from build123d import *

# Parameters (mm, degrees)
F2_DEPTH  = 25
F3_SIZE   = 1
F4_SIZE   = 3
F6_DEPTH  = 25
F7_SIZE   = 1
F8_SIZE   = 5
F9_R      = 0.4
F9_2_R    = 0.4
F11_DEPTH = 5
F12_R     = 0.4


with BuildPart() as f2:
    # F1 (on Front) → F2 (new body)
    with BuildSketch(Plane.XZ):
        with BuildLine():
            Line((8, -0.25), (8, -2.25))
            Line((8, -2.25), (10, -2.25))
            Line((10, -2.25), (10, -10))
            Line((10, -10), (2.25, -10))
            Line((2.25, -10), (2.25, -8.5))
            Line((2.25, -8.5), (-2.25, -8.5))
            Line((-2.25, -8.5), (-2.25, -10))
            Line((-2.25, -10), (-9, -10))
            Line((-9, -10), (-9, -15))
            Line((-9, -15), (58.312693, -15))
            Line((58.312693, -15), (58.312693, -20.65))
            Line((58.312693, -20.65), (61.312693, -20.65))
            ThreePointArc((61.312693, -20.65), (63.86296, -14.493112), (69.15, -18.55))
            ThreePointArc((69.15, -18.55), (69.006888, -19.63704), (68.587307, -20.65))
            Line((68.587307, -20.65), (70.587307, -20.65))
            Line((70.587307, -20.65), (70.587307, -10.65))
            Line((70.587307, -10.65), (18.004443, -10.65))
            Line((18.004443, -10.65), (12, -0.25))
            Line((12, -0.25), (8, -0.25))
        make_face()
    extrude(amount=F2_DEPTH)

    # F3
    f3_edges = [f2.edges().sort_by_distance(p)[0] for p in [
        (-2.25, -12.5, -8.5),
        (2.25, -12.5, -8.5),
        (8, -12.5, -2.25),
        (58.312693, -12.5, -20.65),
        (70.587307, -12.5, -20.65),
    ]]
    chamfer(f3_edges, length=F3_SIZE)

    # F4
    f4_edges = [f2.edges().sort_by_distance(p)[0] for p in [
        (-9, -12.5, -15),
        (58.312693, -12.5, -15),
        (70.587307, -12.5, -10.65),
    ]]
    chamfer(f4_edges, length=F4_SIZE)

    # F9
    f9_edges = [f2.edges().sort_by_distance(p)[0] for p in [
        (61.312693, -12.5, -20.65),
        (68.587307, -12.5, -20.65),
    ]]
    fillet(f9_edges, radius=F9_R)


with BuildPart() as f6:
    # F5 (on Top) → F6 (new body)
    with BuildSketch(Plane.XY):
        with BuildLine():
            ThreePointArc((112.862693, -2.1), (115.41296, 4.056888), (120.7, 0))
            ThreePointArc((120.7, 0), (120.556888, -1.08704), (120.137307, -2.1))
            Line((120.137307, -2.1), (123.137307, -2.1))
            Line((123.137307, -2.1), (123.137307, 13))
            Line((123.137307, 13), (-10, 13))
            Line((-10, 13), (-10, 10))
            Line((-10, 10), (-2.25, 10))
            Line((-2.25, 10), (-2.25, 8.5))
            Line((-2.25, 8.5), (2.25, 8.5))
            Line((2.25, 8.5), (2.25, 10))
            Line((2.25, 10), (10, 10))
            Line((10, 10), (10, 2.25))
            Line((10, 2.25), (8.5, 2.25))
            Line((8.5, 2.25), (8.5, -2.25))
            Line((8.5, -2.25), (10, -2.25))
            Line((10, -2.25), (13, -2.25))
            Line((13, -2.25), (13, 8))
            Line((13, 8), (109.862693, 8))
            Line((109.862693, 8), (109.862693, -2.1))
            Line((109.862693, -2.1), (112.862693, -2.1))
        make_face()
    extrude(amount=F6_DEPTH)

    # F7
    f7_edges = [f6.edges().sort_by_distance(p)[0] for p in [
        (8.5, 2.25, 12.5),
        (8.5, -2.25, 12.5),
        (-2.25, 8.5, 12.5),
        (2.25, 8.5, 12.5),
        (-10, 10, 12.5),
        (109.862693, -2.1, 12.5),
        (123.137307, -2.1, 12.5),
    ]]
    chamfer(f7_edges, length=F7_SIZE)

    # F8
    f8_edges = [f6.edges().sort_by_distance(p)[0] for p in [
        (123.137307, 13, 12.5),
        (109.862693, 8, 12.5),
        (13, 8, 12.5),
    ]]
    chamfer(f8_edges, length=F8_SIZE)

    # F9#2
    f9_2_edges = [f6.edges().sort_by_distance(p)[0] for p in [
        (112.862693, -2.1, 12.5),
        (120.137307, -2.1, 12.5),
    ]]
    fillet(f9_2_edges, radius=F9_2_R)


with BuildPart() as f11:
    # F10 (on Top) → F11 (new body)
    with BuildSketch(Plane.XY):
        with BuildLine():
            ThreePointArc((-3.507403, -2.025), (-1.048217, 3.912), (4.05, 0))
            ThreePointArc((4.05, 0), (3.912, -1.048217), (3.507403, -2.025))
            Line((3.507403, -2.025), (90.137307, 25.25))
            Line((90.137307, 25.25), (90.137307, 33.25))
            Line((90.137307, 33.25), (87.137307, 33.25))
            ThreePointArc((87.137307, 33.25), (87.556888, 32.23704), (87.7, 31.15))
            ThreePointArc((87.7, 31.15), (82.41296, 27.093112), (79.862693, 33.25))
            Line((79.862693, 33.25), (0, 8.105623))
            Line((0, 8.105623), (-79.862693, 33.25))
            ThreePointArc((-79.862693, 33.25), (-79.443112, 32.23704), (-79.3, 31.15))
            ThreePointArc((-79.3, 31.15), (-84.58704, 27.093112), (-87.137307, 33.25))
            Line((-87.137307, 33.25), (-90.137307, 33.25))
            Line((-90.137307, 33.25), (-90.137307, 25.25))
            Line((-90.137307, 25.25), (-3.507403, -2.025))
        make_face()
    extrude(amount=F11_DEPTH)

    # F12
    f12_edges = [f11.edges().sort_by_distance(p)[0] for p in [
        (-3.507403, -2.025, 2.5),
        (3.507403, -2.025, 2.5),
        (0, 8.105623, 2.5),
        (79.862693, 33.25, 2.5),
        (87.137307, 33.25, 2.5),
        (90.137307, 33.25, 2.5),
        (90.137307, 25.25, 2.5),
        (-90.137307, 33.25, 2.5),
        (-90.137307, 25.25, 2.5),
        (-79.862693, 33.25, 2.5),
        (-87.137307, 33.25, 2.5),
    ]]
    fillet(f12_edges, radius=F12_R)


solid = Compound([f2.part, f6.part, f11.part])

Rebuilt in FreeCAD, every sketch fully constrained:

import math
import FreeCAD as App
import Part
import Sketcher
Q = App.Units.Quantity


def edges_at(feature, points):
    """Names of the edges that pass closest to the given points."""
    edges = feature.Shape.Edges
    near = lambda p: min(range(len(edges)), key=lambda i: edges[i].distToShape(Part.Vertex(*p))[0])
    return sorted({f"Edge{near(p) + 1}" for p in points})

doc = App.newDocument("Part")
body = doc.addObject("PartDesign::Body", "Body")

# Sketch on XZ plane
sketch1 = doc.addObject("Sketcher::SketchObject", "Sketch")
body.addObject(sketch1)
sketch1.AttachmentSupport = (doc.XZ_Plane, [""])
sketch1.MapMode = "FlatFace"
sketch1.addGeometry([
    Part.LineSegment(App.Vector(8, -0.2, 0), App.Vector(8, -2.2, 0)),  # 0
    Part.LineSegment(App.Vector(8, -2.2, 0), App.Vector(10, -2.2, 0)),  # 1
    Part.LineSegment(App.Vector(10, -2.2, 0), App.Vector(10, -10, 0)),  # 2
    Part.LineSegment(App.Vector(10, -10, 0), App.Vector(2.2, -10, 0)),  # 3
    Part.LineSegment(App.Vector(2.2, -10, 0), App.Vector(2.2, -8.5, 0)),  # 4
    Part.LineSegment(App.Vector(2.2, -8.5, 0), App.Vector(-2.2, -8.5, 0)),  # 5
    Part.LineSegment(App.Vector(-2.2, -8.5, 0), App.Vector(-2.2, -10, 0)),  # 6
    Part.LineSegment(App.Vector(-2.2, -10, 0), App.Vector(-9, -10, 0)),  # 7
    Part.LineSegment(App.Vector(-9, -10, 0), App.Vector(-9, -15, 0)),  # 8
    Part.LineSegment(App.Vector(-9, -15, 0), App.Vector(58.3, -15, 0)),  # 9
    Part.LineSegment(App.Vector(58.3, -15, 0), App.Vector(58.3, -20.6, 0)),  # 10
    Part.LineSegment(App.Vector(58.3, -20.6, 0), App.Vector(61.3, -20.6, 0)),  # 11
    Part.ArcOfCircle(Part.Circle(App.Vector(64.9, -18.6, 0), App.Vector(0, 0, 1), 4.2), math.radians(0), math.radians(210)),  # 12
    Part.ArcOfCircle(Part.Circle(App.Vector(64.9, -18.5, 0), App.Vector(0, 0, 1), 4.2), math.radians(-30), math.radians(0)),  # 13
    Part.LineSegment(App.Vector(68.6, -20.6, 0), App.Vector(70.6, -20.6, 0)),  # 14
    Part.LineSegment(App.Vector(70.6, -20.6, 0), App.Vector(70.6, -10.7, 0)),  # 15
    Part.LineSegment(App.Vector(70.6, -10.7, 0), App.Vector(18, -10.7, 0)),  # 16
    Part.LineSegment(App.Vector(18, -10.7, 0), App.Vector(12, -0.2, 0)),  # 17
    Part.LineSegment(App.Vector(12, -0.2, 0), App.Vector(8, -0.2, 0)),  # 18
], False)
sketch1.addConstraint([
    Sketcher.Constraint("Coincident", 0, 2, 1, 1),
    Sketcher.Constraint("Coincident", 1, 2, 2, 1),
    Sketcher.Constraint("Coincident", 2, 2, 3, 1),
    Sketcher.Constraint("Coincident", 3, 2, 4, 1),
    Sketcher.Constraint("Coincident", 4, 2, 5, 1),
    Sketcher.Constraint("Coincident", 5, 2, 6, 1),
    Sketcher.Constraint("Coincident", 6, 2, 7, 1),
    Sketcher.Constraint("Coincident", 7, 2, 8, 1),
    Sketcher.Constraint("Coincident", 8, 2, 9, 1),
    Sketcher.Constraint("Coincident", 9, 2, 10, 1),
    Sketcher.Constraint("Coincident", 10, 2, 11, 1),
    Sketcher.Constraint("Coincident", 11, 2, 12, 2),
    Sketcher.Constraint("Tangent", 12, 1, 13, 2),
    Sketcher.Constraint("Coincident", 13, 1, 14, 1),
    Sketcher.Constraint("Coincident", 14, 2, 15, 1),
    Sketcher.Constraint("Coincident", 15, 2, 16, 1),
    Sketcher.Constraint("Coincident", 16, 2, 17, 1),
    Sketcher.Constraint("Coincident", 17, 2, 18, 1),
    Sketcher.Constraint("Coincident", 18, 2, 0, 1),
    Sketcher.Constraint("Vertical", 0),
    Sketcher.Constraint("Horizontal", 1),
    Sketcher.Constraint("Vertical", 2),
    Sketcher.Constraint("Horizontal", 3),
    Sketcher.Constraint("Vertical", 4),
    Sketcher.Constraint("Horizontal", 5),
    Sketcher.Constraint("Vertical", 6),
    Sketcher.Constraint("Horizontal", 7),
    Sketcher.Constraint("Vertical", 8),
    Sketcher.Constraint("Horizontal", 9),
    Sketcher.Constraint("Vertical", 10),
    Sketcher.Constraint("Horizontal", 11),
    Sketcher.Constraint("Horizontal", 14),
    Sketcher.Constraint("Vertical", 15),
    Sketcher.Constraint("Horizontal", 16),
    Sketcher.Constraint("Horizontal", 18),
    Sketcher.Constraint("Symmetric", 3, 2, 6, 2, -2),
    Sketcher.Constraint("Horizontal", 11, 2, 13, 1),
    Sketcher.Constraint("Equal", 1, 14),
    Sketcher.Constraint("Equal", 14, 0),
    Sketcher.Constraint("Equal", 3, 2),
    Sketcher.Constraint("Radius", 12, Q("4.2 mm")),
    Sketcher.Constraint("DistanceX", 1, 1, 1, 2, Q("2 mm")),
    Sketcher.Constraint("DistanceX", 11, 1, 11, 2, Q("3 mm")),
    Sketcher.Constraint("DistanceX", 18, 2, 18, 1, Q("4 mm")),
    Sketcher.Constraint("DistanceY", 8, 2, 8, 1, Q("5 mm")),
    Sketcher.Constraint("DistanceY", 15, 1, 15, 2, Q("10 mm")),
    Sketcher.Constraint("Angle", 17, Q("120.000001 deg")),
    Sketcher.Constraint("DistanceX", 5, 2, 5, 1, Q("4.5 mm")),
    Sketcher.Constraint("DistanceY", 4, 1, 4, 2, Q("1.5 mm")),
    Sketcher.Constraint("DistanceX", -1, 1, 0, 2, Q("8 mm")),
    Sketcher.Constraint("DistanceY", 2, 2, -1, 1, Q("10 mm")),
    Sketcher.Constraint("DistanceX", 7, 2, -1, 1, Q("9 mm")),
    Sketcher.Constraint("DistanceY", 10, 2, 10, 1, Q("5.65 mm")),
    Sketcher.Constraint("DistanceY", 12, 3, 0, 2, Q("16.3 mm")),
    Sketcher.Constraint("DistanceX", 3, 2, 12, 3, Q("62.7 mm")),
    Sketcher.Constraint("DistanceY", 11, 2, 12, 1, Q("2.1 mm")),
    Sketcher.Constraint("Radius", 13, Q("4.200017 mm")),
])
pad1 = doc.addObject("PartDesign::Pad", "Pad")
body.addObject(pad1)
pad1.Profile = sketch1
pad1.Length = 25
doc.recompute()

chamfer = doc.addObject("PartDesign::Chamfer", "Chamfer")
body.addObject(chamfer)
chamfer.Base = (pad1, edges_at(pad1, [
    (-2.25, -12.5, -8.5),
    (2.25, -12.5, -8.5),
    (8, -12.5, -2.25),
    (58.313, -12.5, -20.65),
    (70.587, -12.5, -20.65),
]))
chamfer.Size = 1
doc.recompute()

chamfer2 = doc.addObject("PartDesign::Chamfer", "Chamfer001")
body.addObject(chamfer2)
chamfer2.Base = (chamfer, edges_at(chamfer, [(-9, -12.5, -15), (58.313, -12.5, -15), (70.587, -12.5, -10.65)]))
chamfer2.Size = 3
doc.recompute()

fillet = doc.addObject("PartDesign::Fillet", "Fillet")
body.addObject(fillet)
fillet.Base = (chamfer2, edges_at(chamfer2, [(61.313, -12.5, -20.65), (68.587, -12.5, -20.65)]))
fillet.Radius = 0.4
body2 = doc.addObject("PartDesign::Body", "Body001")

# Sketch on XY plane
sketch2 = doc.addObject("Sketcher::SketchObject", "Sketch001")
body2.addObject(sketch2)
sketch2.AttachmentSupport = (doc.getObject("XY_Plane001"), [""])
sketch2.MapMode = "FlatFace"
sketch2.addGeometry([
    Part.ArcOfCircle(Part.Circle(App.Vector(116.5, 0, 0), App.Vector(0, 0, 1), 4.2), math.radians(0), math.radians(210)),  # 0
    Part.ArcOfCircle(Part.Circle(App.Vector(116.5, 0, 0), App.Vector(0, 0, 1), 4.2), math.radians(-30), math.radians(0)),  # 1
    Part.LineSegment(App.Vector(120.1, -2.1, 0), App.Vector(123.1, -2.1, 0)),  # 2
    Part.LineSegment(App.Vector(123.1, -2.1, 0), App.Vector(123.1, 13, 0)),  # 3
    Part.LineSegment(App.Vector(123.1, 13, 0), App.Vector(-10, 13, 0)),  # 4
    Part.LineSegment(App.Vector(-10, 13, 0), App.Vector(-10, 10, 0)),  # 5
    Part.LineSegment(App.Vector(-10, 10, 0), App.Vector(-2.2, 10, 0)),  # 6
    Part.LineSegment(App.Vector(-2.2, 10, 0), App.Vector(-2.2, 8.5, 0)),  # 7
    Part.LineSegment(App.Vector(-2.2, 8.5, 0), App.Vector(2.2, 8.5, 0)),  # 8
    Part.LineSegment(App.Vector(2.2, 8.5, 0), App.Vector(2.2, 10, 0)),  # 9
    Part.LineSegment(App.Vector(2.2, 10, 0), App.Vector(10, 10, 0)),  # 10
    Part.LineSegment(App.Vector(10, 10, 0), App.Vector(10, 2.2, 0)),  # 11
    Part.LineSegment(App.Vector(10, 2.2, 0), App.Vector(8.5, 2.2, 0)),  # 12
    Part.LineSegment(App.Vector(8.5, 2.2, 0), App.Vector(8.5, -2.2, 0)),  # 13
    Part.LineSegment(App.Vector(8.5, -2.2, 0), App.Vector(13, -2.2, 0)),  # 14
    Part.LineSegment(App.Vector(13, -2.2, 0), App.Vector(13, 8, 0)),  # 15
    Part.LineSegment(App.Vector(13, 8, 0), App.Vector(109.9, 8, 0)),  # 16
    Part.LineSegment(App.Vector(109.9, 8, 0), App.Vector(109.9, -2.1, 0)),  # 17
    Part.LineSegment(App.Vector(109.9, -2.1, 0), App.Vector(112.9, -2.1, 0)),  # 18
], False)
sketch2.addConstraint([
    Sketcher.Constraint("Tangent", 0, 1, 1, 2),
    Sketcher.Constraint("Coincident", 1, 1, 2, 1),
    Sketcher.Constraint("Coincident", 2, 2, 3, 1),
    Sketcher.Constraint("Coincident", 3, 2, 4, 1),
    Sketcher.Constraint("Coincident", 4, 2, 5, 1),
    Sketcher.Constraint("Coincident", 5, 2, 6, 1),
    Sketcher.Constraint("Coincident", 6, 2, 7, 1),
    Sketcher.Constraint("Coincident", 7, 2, 8, 1),
    Sketcher.Constraint("Coincident", 8, 2, 9, 1),
    Sketcher.Constraint("Coincident", 9, 2, 10, 1),
    Sketcher.Constraint("Coincident", 10, 2, 11, 1),
    Sketcher.Constraint("Coincident", 11, 2, 12, 1),
    Sketcher.Constraint("Coincident", 12, 2, 13, 1),
    Sketcher.Constraint("Coincident", 13, 2, 14, 1),
    Sketcher.Constraint("Coincident", 14, 2, 15, 1),
    Sketcher.Constraint("Coincident", 15, 2, 16, 1),
    Sketcher.Constraint("Coincident", 16, 2, 17, 1),
    Sketcher.Constraint("Coincident", 17, 2, 18, 1),
    Sketcher.Constraint("Coincident", 18, 2, 0, 2),
    Sketcher.Constraint("Horizontal", 2),
    Sketcher.Constraint("Vertical", 3),
    Sketcher.Constraint("Horizontal", 4),
    Sketcher.Constraint("Vertical", 5),
    Sketcher.Constraint("Horizontal", 6),
    Sketcher.Constraint("Vertical", 7),
    Sketcher.Constraint("Horizontal", 8),
    Sketcher.Constraint("Vertical", 9),
    Sketcher.Constraint("Horizontal", 10),
    Sketcher.Constraint("Vertical", 11),
    Sketcher.Constraint("Horizontal", 12),
    Sketcher.Constraint("Vertical", 13),
    Sketcher.Constraint("Horizontal", 14),
    Sketcher.Constraint("Vertical", 15),
    Sketcher.Constraint("Horizontal", 16),
    Sketcher.Constraint("Vertical", 17),
    Sketcher.Constraint("Horizontal", 18),
    Sketcher.Constraint("Symmetric", 6, 2, 9, 2, -2),
    Sketcher.Constraint("PointOnObject", 0, 3, -1),
    Sketcher.Constraint("PointOnObject", 0, 1, -1),
    Sketcher.Constraint("Horizontal", 2, 2, 17, 2),
    Sketcher.Constraint("Equal", 6, 10),
    Sketcher.Constraint("Equal", 8, 14),
    Sketcher.Constraint("Equal", 2, 18),
    Sketcher.Constraint("Equal", 18, 5),
    Sketcher.Constraint("Equal", 12, 7),
    Sketcher.Constraint("Equal", 10, 11),
    Sketcher.Constraint("Equal", 14, 13),
    Sketcher.Constraint("Radius", 0, Q("4.2 mm")),
    Sketcher.Constraint("DistanceX", 2, 1, 2, 2, Q("3 mm")),
    Sketcher.Constraint("DistanceX", 8, 1, 8, 2, Q("4.5 mm")),
    Sketcher.Constraint("DistanceX", 12, 2, 12, 1, Q("1.5 mm")),
    Sketcher.Constraint("DistanceY", 3, 1, 3, 2, Q("15.1 mm")),
    Sketcher.Constraint("DistanceY", 17, 2, 17, 1, Q("10.1 mm")),
    Sketcher.Constraint("DistanceY", -1, 1, 3, 2, Q("13 mm")),
    Sketcher.Constraint("DistanceX", 4, 2, -1, 1, Q("10 mm")),
    Sketcher.Constraint("DistanceX", -1, 1, 0, 3, Q("116.5 mm")),
    Sketcher.Constraint("Radius", 1, Q("4.200017 mm")),
])
pad2 = doc.addObject("PartDesign::Pad", "Pad001")
body2.addObject(pad2)
pad2.Profile = sketch2
pad2.Length = 25
doc.recompute()

chamfer3 = doc.addObject("PartDesign::Chamfer", "Chamfer002")
body2.addObject(chamfer3)
chamfer3.Base = (pad2, edges_at(pad2, [
    (8.5, 2.25, 12.5),
    (8.5, -2.25, 12.5),
    (-2.25, 8.5, 12.5),
    (2.25, 8.5, 12.5),
    (-10, 10, 12.5),
    (109.863, -2.1, 12.5),
    (123.137, -2.1, 12.5),
]))
chamfer3.Size = 1
doc.recompute()

chamfer4 = doc.addObject("PartDesign::Chamfer", "Chamfer003")
body2.addObject(chamfer4)
chamfer4.Base = (chamfer3, edges_at(chamfer3, [(123.137, 13, 12.5), (109.863, 8, 12.5), (13, 8, 12.5)]))
chamfer4.Size = 5
doc.recompute()

fillet2 = doc.addObject("PartDesign::Fillet", "Fillet001")
body2.addObject(fillet2)
fillet2.Base = (chamfer4, edges_at(chamfer4, [(112.863, -2.1, 12.5), (120.137, -2.1, 12.5)]))
fillet2.Radius = 0.4
body3 = doc.addObject("PartDesign::Body", "Body002")

# Sketch on XY plane
sketch3 = doc.addObject("Sketcher::SketchObject", "Sketch002")
body3.addObject(sketch3)
sketch3.AttachmentSupport = (doc.getObject("XY_Plane002"), [""])
sketch3.MapMode = "FlatFace"
sketch3.addGeometry([
    Part.ArcOfCircle(Part.Circle(App.Vector(0, 0, 0), App.Vector(0, 0, 1), 4.1), math.radians(0), math.radians(210)),  # 0
    Part.ArcOfCircle(Part.Circle(App.Vector(0, 0, 0), App.Vector(0, 0, 1), 4), math.radians(-30), math.radians(0)),  # 1
    Part.LineSegment(App.Vector(3.5, -2, 0), App.Vector(90.1, 25.2, 0)),  # 2
    Part.LineSegment(App.Vector(90.1, 25.2, 0), App.Vector(90.1, 33.2, 0)),  # 3
    Part.LineSegment(App.Vector(90.1, 33.2, 0), App.Vector(87.1, 33.2, 0)),  # 4
    Part.ArcOfCircle(Part.Circle(App.Vector(83.5, 31.1, 0), App.Vector(0, 0, 1), 4.2), math.radians(0), math.radians(30)),  # 5
    Part.ArcOfCircle(Part.Circle(App.Vector(83.5, 31.2, 0), App.Vector(0, 0, 1), 4.2), math.radians(150), math.radians(360)),  # 6
    Part.LineSegment(App.Vector(79.9, 33.2, 0), App.Vector(0, 8.1, 0)),  # 7
    Part.LineSegment(App.Vector(0, 8.1, 0), App.Vector(-79.9, 33.2, 0)),  # 8
    Part.ArcOfCircle(Part.Circle(App.Vector(-83.5, 31.1, 0), App.Vector(0, 0, 1), 4.2), math.radians(0), math.radians(30)),  # 9
    Part.ArcOfCircle(Part.Circle(App.Vector(-83.5, 31.2, 0), App.Vector(0, 0, 1), 4.2), math.radians(150), math.radians(360)),  # 10
    Part.LineSegment(App.Vector(-87.1, 33.2, 0), App.Vector(-90.1, 33.2, 0)),  # 11
    Part.LineSegment(App.Vector(-90.1, 33.2, 0), App.Vector(-90.1, 25.2, 0)),  # 12
    Part.LineSegment(App.Vector(-90.1, 25.2, 0), App.Vector(-3.5, -2, 0)),  # 13
], False)
sketch3.addConstraint([
    Sketcher.Constraint("Tangent", 0, 1, 1, 2),
    Sketcher.Constraint("Coincident", 1, 1, 2, 1),
    Sketcher.Constraint("Coincident", 2, 2, 3, 1),
    Sketcher.Constraint("Coincident", 3, 2, 4, 1),
    Sketcher.Constraint("Coincident", 4, 2, 5, 2),
    Sketcher.Constraint("Tangent", 5, 1, 6, 2),
    Sketcher.Constraint("Coincident", 6, 1, 7, 1),
    Sketcher.Constraint("Coincident", 7, 2, 8, 1),
    Sketcher.Constraint("Coincident", 8, 2, 9, 2),
    Sketcher.Constraint("Tangent", 9, 1, 10, 2),
    Sketcher.Constraint("Coincident", 10, 1, 11, 1),
    Sketcher.Constraint("Coincident", 11, 2, 12, 1),
    Sketcher.Constraint("Coincident", 12, 2, 13, 1),
    Sketcher.Constraint("Coincident", 13, 2, 0, 2),
    Sketcher.Constraint("Vertical", 3),
    Sketcher.Constraint("Horizontal", 4),
    Sketcher.Constraint("Horizontal", 11),
    Sketcher.Constraint("Vertical", 12),
    Sketcher.Constraint("Coincident", 0, 3, -1, 1),
    Sketcher.Constraint("Equal", 5, 9),
    Sketcher.Constraint("Equal", 6, 10),
    Sketcher.Constraint("Symmetric", 6, 3, 10, 3, -2),
    Sketcher.Constraint("Symmetric", 6, 1, 8, 2, -2),
    Sketcher.Constraint("Symmetric", 3, 2, 11, 2, -2),
    Sketcher.Constraint("Symmetric", 1, 1, 13, 2, -2),
    Sketcher.Constraint("PointOnObject", 0, 1, -1),
    Sketcher.Constraint("PointOnObject", 7, 2, -2),
    Sketcher.Constraint("Parallel", 2, 7),
    Sketcher.Constraint("Parallel", 8, 13),
    Sketcher.Constraint("Horizontal", 10, 3, 5, 1),
    Sketcher.Constraint("Horizontal", 4, 2, 6, 1),
    Sketcher.Constraint("Horizontal", 5, 1, 9, 1),
    Sketcher.Constraint("Radius", 6, Q("4.2 mm")),
    Sketcher.Constraint("DistanceX", 4, 2, 4, 1, Q("3 mm")),
    Sketcher.Constraint("DistanceY", 3, 1, 3, 2, Q("8 mm")),
    Sketcher.Constraint("Radius", 0, Q("4.05 mm")),
    Sketcher.Constraint("DistanceX", 9, 3, 5, 3, Q("167 mm")),
    Sketcher.Constraint("DistanceY", 2, 2, 6, 3, Q("5.9 mm")),
    Sketcher.Constraint("DistanceY", -1, 1, 6, 3, Q("31.15 mm")),
    Sketcher.Constraint("DistanceY", 1, 1, -1, 1, Q("2.025 mm")),
])
pad3 = doc.addObject("PartDesign::Pad", "Pad002")
body3.addObject(pad3)
pad3.Profile = sketch3
pad3.Length = 5
doc.recompute()

fillet3 = doc.addObject("PartDesign::Fillet", "Fillet002")
body3.addObject(fillet3)
fillet3.Base = (pad3, edges_at(pad3, [
    (-3.507, -2.025, 2.5),
    (3.507, -2.025, 2.5),
    (0, 8.106, 2.5),
    (79.863, 33.25, 2.5),
    (87.137, 33.25, 2.5),
    (90.137, 33.25, 2.5),
    (90.137, 25.25, 2.5),
    (-90.137, 33.25, 2.5),
    (-90.137, 25.25, 2.5),
    (-79.863, 33.25, 2.5),
    (-87.137, 33.25, 2.5),
]))
fillet3.Radius = 0.4

doc.recompute()
